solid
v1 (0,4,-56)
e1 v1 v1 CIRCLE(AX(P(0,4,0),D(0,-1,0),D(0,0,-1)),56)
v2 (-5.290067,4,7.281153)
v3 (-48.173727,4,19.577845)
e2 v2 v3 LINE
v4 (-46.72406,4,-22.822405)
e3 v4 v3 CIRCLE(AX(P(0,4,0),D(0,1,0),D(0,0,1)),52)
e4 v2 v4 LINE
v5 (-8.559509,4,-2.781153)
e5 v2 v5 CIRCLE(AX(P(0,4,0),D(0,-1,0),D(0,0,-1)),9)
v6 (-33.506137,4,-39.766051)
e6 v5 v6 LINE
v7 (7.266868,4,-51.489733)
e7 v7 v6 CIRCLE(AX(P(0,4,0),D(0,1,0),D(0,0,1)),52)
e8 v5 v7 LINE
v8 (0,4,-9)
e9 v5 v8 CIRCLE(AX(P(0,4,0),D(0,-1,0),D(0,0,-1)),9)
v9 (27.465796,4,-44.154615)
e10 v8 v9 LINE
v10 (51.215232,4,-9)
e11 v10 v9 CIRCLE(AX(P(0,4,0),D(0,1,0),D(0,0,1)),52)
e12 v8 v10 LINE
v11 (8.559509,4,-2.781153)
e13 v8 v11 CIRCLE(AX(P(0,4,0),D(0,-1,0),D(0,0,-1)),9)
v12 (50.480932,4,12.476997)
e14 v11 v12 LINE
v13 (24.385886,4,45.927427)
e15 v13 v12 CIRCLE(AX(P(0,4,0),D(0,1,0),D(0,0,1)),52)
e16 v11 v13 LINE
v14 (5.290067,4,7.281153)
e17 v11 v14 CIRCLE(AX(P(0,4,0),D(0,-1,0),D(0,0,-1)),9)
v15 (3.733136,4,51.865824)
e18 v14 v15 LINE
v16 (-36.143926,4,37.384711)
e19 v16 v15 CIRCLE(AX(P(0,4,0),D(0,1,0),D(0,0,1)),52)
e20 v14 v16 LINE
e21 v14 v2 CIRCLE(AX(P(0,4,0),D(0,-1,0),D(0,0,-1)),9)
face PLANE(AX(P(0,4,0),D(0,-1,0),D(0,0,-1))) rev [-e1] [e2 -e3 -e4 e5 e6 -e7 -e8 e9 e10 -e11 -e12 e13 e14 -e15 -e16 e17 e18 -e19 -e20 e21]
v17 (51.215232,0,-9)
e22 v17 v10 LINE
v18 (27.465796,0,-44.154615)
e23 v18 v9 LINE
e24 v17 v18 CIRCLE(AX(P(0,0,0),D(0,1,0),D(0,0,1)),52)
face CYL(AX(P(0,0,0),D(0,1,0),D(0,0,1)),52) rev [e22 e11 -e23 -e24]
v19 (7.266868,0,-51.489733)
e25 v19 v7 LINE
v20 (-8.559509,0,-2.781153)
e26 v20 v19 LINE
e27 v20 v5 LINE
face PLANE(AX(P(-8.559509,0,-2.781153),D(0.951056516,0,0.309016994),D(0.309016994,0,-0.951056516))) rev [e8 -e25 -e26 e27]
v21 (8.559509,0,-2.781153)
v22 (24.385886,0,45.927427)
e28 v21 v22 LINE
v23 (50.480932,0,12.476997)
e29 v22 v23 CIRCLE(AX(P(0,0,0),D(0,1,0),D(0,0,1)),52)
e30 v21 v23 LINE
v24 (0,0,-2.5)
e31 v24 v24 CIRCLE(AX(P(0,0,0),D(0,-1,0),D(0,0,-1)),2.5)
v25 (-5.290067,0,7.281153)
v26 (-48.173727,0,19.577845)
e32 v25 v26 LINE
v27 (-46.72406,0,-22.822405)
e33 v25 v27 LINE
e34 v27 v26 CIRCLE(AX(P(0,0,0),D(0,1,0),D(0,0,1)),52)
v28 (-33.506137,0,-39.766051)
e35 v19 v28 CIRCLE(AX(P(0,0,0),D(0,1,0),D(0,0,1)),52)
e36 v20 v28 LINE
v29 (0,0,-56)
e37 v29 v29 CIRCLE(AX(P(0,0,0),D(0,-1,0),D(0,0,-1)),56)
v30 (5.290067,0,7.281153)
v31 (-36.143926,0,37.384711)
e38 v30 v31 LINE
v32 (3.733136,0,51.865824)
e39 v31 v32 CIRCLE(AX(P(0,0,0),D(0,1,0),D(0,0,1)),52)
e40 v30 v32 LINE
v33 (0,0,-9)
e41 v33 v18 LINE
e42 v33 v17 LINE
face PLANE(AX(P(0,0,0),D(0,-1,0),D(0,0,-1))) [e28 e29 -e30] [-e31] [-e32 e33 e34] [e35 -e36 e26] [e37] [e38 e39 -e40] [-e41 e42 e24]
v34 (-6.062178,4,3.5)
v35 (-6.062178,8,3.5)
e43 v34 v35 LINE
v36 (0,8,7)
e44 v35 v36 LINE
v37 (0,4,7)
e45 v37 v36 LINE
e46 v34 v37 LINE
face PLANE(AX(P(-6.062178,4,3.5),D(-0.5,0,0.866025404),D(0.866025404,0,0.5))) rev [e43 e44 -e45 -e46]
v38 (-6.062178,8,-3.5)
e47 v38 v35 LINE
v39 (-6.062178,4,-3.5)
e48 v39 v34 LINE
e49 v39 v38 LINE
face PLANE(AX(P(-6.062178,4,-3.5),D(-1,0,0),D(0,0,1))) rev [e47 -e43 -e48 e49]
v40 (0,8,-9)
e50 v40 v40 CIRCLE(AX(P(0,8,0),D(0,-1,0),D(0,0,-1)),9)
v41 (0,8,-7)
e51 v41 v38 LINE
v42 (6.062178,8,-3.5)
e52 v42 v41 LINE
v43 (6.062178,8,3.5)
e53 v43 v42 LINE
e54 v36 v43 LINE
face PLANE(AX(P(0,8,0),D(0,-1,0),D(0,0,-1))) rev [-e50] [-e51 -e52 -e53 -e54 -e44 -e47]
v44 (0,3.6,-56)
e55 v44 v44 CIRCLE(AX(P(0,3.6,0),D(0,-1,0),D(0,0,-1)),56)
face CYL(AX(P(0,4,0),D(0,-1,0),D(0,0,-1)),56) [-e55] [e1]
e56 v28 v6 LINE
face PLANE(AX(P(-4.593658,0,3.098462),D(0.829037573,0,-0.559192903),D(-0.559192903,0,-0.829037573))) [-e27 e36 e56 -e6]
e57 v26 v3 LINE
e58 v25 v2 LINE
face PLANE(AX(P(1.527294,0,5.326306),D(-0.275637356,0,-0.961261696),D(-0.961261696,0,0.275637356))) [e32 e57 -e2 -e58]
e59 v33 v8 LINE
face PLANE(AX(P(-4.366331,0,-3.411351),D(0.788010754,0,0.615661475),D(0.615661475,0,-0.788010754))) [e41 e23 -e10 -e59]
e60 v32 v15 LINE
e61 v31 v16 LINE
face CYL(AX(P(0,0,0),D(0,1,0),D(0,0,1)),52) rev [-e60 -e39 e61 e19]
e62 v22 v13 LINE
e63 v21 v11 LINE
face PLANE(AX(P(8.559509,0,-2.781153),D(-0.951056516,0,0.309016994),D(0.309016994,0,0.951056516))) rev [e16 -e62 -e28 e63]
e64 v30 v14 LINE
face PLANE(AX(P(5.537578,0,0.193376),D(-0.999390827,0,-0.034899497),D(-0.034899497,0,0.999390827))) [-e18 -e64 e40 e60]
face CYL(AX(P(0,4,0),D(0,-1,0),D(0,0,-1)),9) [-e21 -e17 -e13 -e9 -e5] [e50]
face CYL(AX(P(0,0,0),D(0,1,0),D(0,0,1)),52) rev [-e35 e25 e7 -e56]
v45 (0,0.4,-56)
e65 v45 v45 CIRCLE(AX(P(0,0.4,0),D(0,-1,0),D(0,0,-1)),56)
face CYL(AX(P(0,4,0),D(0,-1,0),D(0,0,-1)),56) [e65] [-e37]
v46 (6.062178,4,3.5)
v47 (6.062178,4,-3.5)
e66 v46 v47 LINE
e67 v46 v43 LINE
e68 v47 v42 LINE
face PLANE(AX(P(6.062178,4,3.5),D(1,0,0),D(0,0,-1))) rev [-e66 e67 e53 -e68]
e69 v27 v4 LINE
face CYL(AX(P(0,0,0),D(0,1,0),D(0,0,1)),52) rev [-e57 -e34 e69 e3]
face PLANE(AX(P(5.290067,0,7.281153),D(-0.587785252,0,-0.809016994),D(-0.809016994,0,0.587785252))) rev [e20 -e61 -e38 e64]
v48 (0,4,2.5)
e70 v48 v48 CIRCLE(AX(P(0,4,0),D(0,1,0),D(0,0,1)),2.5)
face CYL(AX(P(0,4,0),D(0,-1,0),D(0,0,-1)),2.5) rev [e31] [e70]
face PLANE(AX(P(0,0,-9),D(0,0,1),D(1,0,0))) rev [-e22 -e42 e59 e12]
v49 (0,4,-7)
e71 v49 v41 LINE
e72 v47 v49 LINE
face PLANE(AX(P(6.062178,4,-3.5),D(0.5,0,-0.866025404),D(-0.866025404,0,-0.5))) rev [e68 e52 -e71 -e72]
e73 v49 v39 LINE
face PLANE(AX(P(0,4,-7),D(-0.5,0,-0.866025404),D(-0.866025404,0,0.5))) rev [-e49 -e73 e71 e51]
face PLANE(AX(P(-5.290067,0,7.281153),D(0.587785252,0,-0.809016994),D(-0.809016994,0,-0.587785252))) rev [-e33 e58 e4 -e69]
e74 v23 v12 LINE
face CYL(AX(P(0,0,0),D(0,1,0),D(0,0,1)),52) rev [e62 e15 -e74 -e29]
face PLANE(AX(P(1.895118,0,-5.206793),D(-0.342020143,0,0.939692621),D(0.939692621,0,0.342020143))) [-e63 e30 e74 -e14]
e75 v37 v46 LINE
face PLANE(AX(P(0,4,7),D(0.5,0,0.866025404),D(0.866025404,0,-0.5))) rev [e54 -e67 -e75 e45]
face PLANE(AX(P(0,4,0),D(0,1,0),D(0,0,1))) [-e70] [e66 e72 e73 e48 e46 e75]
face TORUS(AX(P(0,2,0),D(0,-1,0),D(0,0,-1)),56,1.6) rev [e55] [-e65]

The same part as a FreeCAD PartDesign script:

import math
import FreeCAD as App
import Part
import Sketcher

V = App.Vector
Q = App.Units.Quantity


def add_polygon(sketch, points):
    """Adds a closed chain of lines whose ends are joined by coincident constraints."""
    first, n = sketch.GeometryCount, len(points)
    for a, b in zip(points, points[1:] + points[:1]):
        sketch.addGeometry(Part.LineSegment(App.Vector(*a, 0), App.Vector(*b, 0)), False)
    for i in range(n):
        sketch.addConstraint(Sketcher.Constraint("Coincident", first + i, 2, first + (i + 1) % n, 1))

doc = App.newDocument("Part")
body = doc.addObject("PartDesign::Body", "Body")

sketch1 = body.newObject("Sketcher::SketchObject", "Sketch")
sketch1.AttachmentSupport = (doc.getObject("XY_Plane"), [""])
sketch1.MapMode = "FlatFace"
sketch1.addGeometry([
    Part.LineSegment(V(9, 8, 0), V(2.5, 8, 0)),
    Part.LineSegment(V(2.5, 8, 0), V(2.5, 0, 0)),
    Part.LineSegment(V(2.5, 0, 0), V(56, 0, 0)),
    Part.LineSegment(V(56, 0, 0), V(56, 0.4, 0)),
    Part.ArcOfCircle(Part.Circle(V(56, 2, 0), V(0, 0, 1), 1.6), math.radians(90), math.radians(270)),
    Part.LineSegment(V(56, 3.6, 0), V(56, 4, 0)),
    Part.LineSegment(V(56, 4, 0), V(9, 4, 0)),
    Part.LineSegment(V(9, 4, 0), V(9, 8, 0)),
], False)
sketch1.addConstraint([
    Sketcher.Constraint("Coincident", 0, 2, 1, 1),
    Sketcher.Constraint("Coincident", 1, 2, 2, 1),
    Sketcher.Constraint("Coincident", 2, 2, 3, 1),
    Sketcher.Constraint("Coincident", 3, 2, 4, 2),
    Sketcher.Constraint("Coincident", 4, 1, 5, 1),
    Sketcher.Constraint("Coincident", 5, 2, 6, 1),
    Sketcher.Constraint("Coincident", 6, 2, 7, 1),
    Sketcher.Constraint("Coincident", 7, 2, 0, 1),
    Sketcher.Constraint("Horizontal", 0),
    Sketcher.Constraint("Vertical", 1),
    Sketcher.Constraint("Horizontal", 2),
    Sketcher.Constraint("Vertical", 3),
    Sketcher.Constraint("Vertical", 5),
    Sketcher.Constraint("Horizontal", 6),
    Sketcher.Constraint("Vertical", 7),
    Sketcher.Constraint("PointOnObject", 1, 2, -1),
    Sketcher.Constraint("Vertical", 4, 3, 2, 2),
    Sketcher.Constraint("Vertical", 3, 2, 4, 1),
    Sketcher.Constraint("Equal", 3, 5),
    Sketcher.Constraint("Radius", 4, 1.6),
    Sketcher.Constraint("DistanceX", 6, 2, 6, 1, 47.0),
    Sketcher.Constraint("DistanceY", 1, 2, 1, 1, 8.0),
    Sketcher.Constraint("DistanceY", 7, 1, 7, 2, 4.0),
    Sketcher.Constraint("DistanceX", 0, 2, 0, 1, 6.5),
    Sketcher.Constraint("DistanceX", -1, 1, 4, 3, 56.0),
])
revolution = body.newObject("PartDesign::Revolution", "Revolution")
revolution.Profile = sketch1
revolution.ReferenceAxis = (sketch1, ["V_Axis"])
revolution.Angle = 360

sketch2 = body.newObject("Sketcher::SketchObject", "Sketch001")
sketch2.AttachmentSupport = (doc.getObject("XZ_Plane"), [""])
sketch2.MapMode = "FlatFace"
sketch2.AttachmentOffset = App.Placement(V(0, 0, -4), App.Rotation())
sketch2.addGeometry([
    Part.ArcOfCircle(Part.Circle(V(0, 0, 0), V(0, 0, 1), 52), math.radians(14), math.radians(62)),
    Part.LineSegment(V(50, 12, 0), V(9, -3, 0)),
    Part.LineSegment(V(9, -3, 0), V(24, 46, 0)),
    Part.ArcOfCircle(Part.Circle(V(0, 0, 0), V(0, 0, 1), 52), math.radians(86), math.radians(134)),
    Part.LineSegment(V(4, 52, 0), V(5, 7, 0)),
    Part.LineSegment(V(5, 7, 0), V(-36, 37, 0)),
    Part.LineSegment(V(-5, 7, 0), V(-47, -23, 0)),
    Part.ArcOfCircle(Part.Circle(V(0, 0, 0), V(0, 0, 1), 52), math.radians(158), math.radians(206)),
    Part.LineSegment(V(-48, 20, 0), V(-5, 7, 0)),
    Part.LineSegment(V(-9, -3, 0), V(7, -51, 0)),
    Part.ArcOfCircle(Part.Circle(V(0, 0, 0), V(0, 0, 1), 52), math.radians(-130), math.radians(-82)),
    Part.LineSegment(V(-34, -40, 0), V(-9, -3, 0)),
    Part.LineSegment(V(27, -44, 0), V(0, -9, 0)),
    Part.LineSegment(V(0, -9, 0), V(51, -9, 0)),
    Part.ArcOfCircle(Part.Circle(V(0, 0, 0), V(0, 0, 1), 52), math.radians(-58), math.radians(-10)),
], False)
sketch2.addConstraint([
    Sketcher.Constraint("Coincident", 0, 1, 1, 1),
    Sketcher.Constraint("Coincident", 1, 2, 2, 1),
    Sketcher.Constraint("Coincident", 2, 2, 0, 2),
    Sketcher.Constraint("Coincident", 3, 1, 4, 1),
    Sketcher.Constraint("Coincident", 4, 2, 5, 1),
    Sketcher.Constraint("Coincident", 5, 2, 3, 2),
    Sketcher.Constraint("Coincident", 6, 2, 7, 2),
    Sketcher.Constraint("Coincident", 7, 1, 8, 1),
    Sketcher.Constraint("Coincident", 8, 2, 6, 1),
    Sketcher.Constraint("Coincident", 9, 2, 10, 2),
    Sketcher.Constraint("Coincident", 10, 1, 11, 1),
    Sketcher.Constraint("Coincident", 11, 2, 9, 1),
    Sketcher.Constraint("Coincident", 12, 2, 13, 1),
    Sketcher.Constraint("Coincident", 13, 2, 14, 2),
    Sketcher.Constraint("Coincident", 14, 1, 12, 1),
    Sketcher.Constraint("Horizontal", 13),
    Sketcher.Constraint("Coincident", 0, 3, -1, 1),
    Sketcher.Constraint("Coincident", 3, 3, -1, 1),
    Sketcher.Constraint("Coincident", 7, 3, -1, 1),
    Sketcher.Constraint("Coincident", 10, 3, -1, 1),
    Sketcher.Constraint("Coincident", 14, 3, -1, 1),
    Sketcher.Constraint("Equal", 0, 3),
    Sketcher.Constraint("Equal", 3, 7),
    Sketcher.Constraint("Equal", 7, 10),
    Sketcher.Constraint("Equal", 10, 14),
    Sketcher.Constraint("Symmetric", 4, 2, 8, 2, -2),
    Sketcher.Constraint("Symmetric", 1, 2, 11, 2, -2),
    Sketcher.Constraint("PointOnObject", 12, 2, -2),
    Sketcher.Constraint("Equal", 1, 4),
    Sketcher.Constraint("Equal", 2, 5),
    Sketcher.Constraint("Equal", 5, 6),
    Sketcher.Constraint("Equal", 4, 8),
    Sketcher.Constraint("Equal", 6, 9),
    Sketcher.Constraint("Equal", 8, 11),
    Sketcher.Constraint("Equal", 11, 12),
    Sketcher.Constraint("Radius", 0, 52.0),
    Sketcher.Constraint("Angle", 1, Q("-160 deg")),
    Sketcher.Constraint("Angle", 2, Q("72 deg")),
    Sketcher.Constraint("Angle", 4, Q("-88 deg")),
    Sketcher.Constraint("Angle", 5, Q("144 deg")),
    Sketcher.Constraint("Angle", 6, Q("-144 deg")),
    Sketcher.Constraint("Angle", 12, Q("128 deg")),
    Sketcher.Constraint("DistanceY", 12, 2, -1, 1, 9.0),
])
pocket1 = body.newObject("PartDesign::Pocket", "Pocket")
pocket1.Profile = sketch2
pocket1.Type = "ThroughAll"
pocket1.Reversed = True

sketch3 = body.newObject("Sketcher::SketchObject", "Sketch002")
sketch3.AttachmentSupport = (doc.getObject("XZ_Plane"), [""])
sketch3.MapMode = "FlatFace"
sketch3.AttachmentOffset = App.Placement(V(0, 0, -8), App.Rotation())
add_polygon(sketch3, [(0, -7), (-6, -4), (-6, 4), (0, 7), (6, 4), (6, -4)])
sketch3.addConstraint([
    Sketcher.Constraint("Vertical", 1),
    Sketcher.Constraint("Vertical", 4),
    Sketcher.Constraint("Symmetric", 0, 2, 3, 2, -1, 1),
    Sketcher.Constraint("Symmetric", 2, 2, 5, 2, -1, 1),
    Sketcher.Constraint("PointOnObject", 2, 2, -2),
    Sketcher.Constraint("Parallel", 2, 5),
    Sketcher.Constraint("Horizontal", 1, 2, 3, 2),
    Sketcher.Constraint("DistanceY", 1, 1, 1, 2, 7.0),
    Sketcher.Constraint("Angle", 0, Q("150 deg")),
    Sketcher.Constraint("Distance", 0, 7.0),
])
pocket2 = body.newObject("PartDesign::Pocket", "Pocket001")
pocket2.Profile = sketch3
pocket2.Length = 4
pocket2.Reversed = True

doc.recompute()
